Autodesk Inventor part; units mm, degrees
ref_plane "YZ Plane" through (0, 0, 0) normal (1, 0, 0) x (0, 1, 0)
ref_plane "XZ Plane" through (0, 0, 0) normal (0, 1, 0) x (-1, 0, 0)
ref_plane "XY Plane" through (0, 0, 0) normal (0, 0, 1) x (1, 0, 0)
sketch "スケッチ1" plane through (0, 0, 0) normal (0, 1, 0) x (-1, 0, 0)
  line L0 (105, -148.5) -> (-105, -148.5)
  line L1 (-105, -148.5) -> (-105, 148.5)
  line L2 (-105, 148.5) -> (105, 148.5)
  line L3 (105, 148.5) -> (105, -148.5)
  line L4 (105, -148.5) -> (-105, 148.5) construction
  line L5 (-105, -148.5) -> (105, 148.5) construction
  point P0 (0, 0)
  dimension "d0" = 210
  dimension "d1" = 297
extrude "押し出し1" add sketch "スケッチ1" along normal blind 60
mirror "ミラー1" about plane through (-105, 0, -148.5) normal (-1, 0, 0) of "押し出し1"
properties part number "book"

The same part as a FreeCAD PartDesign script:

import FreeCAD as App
import Part
import Sketcher
Q = App.Units.Quantity

doc = App.newDocument("Part")
body = doc.addObject("PartDesign::Body", "Body")

sketch1 = body.newObject("Sketcher::SketchObject", "Sketch")
sketch1.AttachmentSupport = (doc.getObject("XZ_Plane"), [""])
sketch1.MapMode = "FlatFace"
sketch1.addGeometry(Part.LineSegment(App.Vector(105, -148.5, 0), App.Vector(-105, -148.5, 0)), False)
sketch1.addGeometry(Part.LineSegment(App.Vector(-105, -148.5, 0), App.Vector(-105, 148.5, 0)), False)
sketch1.addGeometry(Part.LineSegment(App.Vector(-105, 148.5, 0), App.Vector(105, 148.5, 0)), False)
sketch1.addGeometry(Part.LineSegment(App.Vector(105, 148.5, 0), App.Vector(105, -148.5, 0)), False)
sketch1.addConstraint(Sketcher.Constraint("Coincident", 0, 2, 1, 1))
sketch1.addConstraint(Sketcher.Constraint("Coincident", 1, 2, 2, 1))
sketch1.addConstraint(Sketcher.Constraint("Coincident", 2, 2, 3, 1))
sketch1.addConstraint(Sketcher.Constraint("Coincident", 3, 2, 0, 1))
sketch1.addConstraint(Sketcher.Constraint("Horizontal", 0))
sketch1.addConstraint(Sketcher.Constraint("Vertical", 1))
sketch1.addConstraint(Sketcher.Constraint("Horizontal", 2))
sketch1.addConstraint(Sketcher.Constraint("Vertical", 3))
sketch1.addConstraint(Sketcher.Constraint("Symmetric", 0, 2, 2, 2, -1, 1))
sketch1.addConstraint(Sketcher.Constraint("DistanceX", 0, 2, 0, 1, Q("210 mm")))
sketch1.addConstraint(Sketcher.Constraint("DistanceY", 1, 1, 1, 2, Q("297 mm")))
pad1 = body.newObject("PartDesign::Pad", "Pad")
pad1.Profile = sketch1
pad1.Length = 60
pad1.Reversed = True
doc.recompute()

datumplane = body.newObject("PartDesign::Plane", "DatumPlane")
datumplane.AttachmentSupport = (doc.getObject("YZ_Plane"), [""])
datumplane.MapMode = "FlatFace"
datumplane.AttachmentOffset = App.Placement(App.Vector(0, 0, -105), App.Rotation())
mirrored = body.newObject("PartDesign::Mirrored", "Mirrored")
mirrored.Originals = [pad1]
mirrored.MirrorPlane = (datumplane, [""])
body.Tip = mirrored

doc.recompute()
